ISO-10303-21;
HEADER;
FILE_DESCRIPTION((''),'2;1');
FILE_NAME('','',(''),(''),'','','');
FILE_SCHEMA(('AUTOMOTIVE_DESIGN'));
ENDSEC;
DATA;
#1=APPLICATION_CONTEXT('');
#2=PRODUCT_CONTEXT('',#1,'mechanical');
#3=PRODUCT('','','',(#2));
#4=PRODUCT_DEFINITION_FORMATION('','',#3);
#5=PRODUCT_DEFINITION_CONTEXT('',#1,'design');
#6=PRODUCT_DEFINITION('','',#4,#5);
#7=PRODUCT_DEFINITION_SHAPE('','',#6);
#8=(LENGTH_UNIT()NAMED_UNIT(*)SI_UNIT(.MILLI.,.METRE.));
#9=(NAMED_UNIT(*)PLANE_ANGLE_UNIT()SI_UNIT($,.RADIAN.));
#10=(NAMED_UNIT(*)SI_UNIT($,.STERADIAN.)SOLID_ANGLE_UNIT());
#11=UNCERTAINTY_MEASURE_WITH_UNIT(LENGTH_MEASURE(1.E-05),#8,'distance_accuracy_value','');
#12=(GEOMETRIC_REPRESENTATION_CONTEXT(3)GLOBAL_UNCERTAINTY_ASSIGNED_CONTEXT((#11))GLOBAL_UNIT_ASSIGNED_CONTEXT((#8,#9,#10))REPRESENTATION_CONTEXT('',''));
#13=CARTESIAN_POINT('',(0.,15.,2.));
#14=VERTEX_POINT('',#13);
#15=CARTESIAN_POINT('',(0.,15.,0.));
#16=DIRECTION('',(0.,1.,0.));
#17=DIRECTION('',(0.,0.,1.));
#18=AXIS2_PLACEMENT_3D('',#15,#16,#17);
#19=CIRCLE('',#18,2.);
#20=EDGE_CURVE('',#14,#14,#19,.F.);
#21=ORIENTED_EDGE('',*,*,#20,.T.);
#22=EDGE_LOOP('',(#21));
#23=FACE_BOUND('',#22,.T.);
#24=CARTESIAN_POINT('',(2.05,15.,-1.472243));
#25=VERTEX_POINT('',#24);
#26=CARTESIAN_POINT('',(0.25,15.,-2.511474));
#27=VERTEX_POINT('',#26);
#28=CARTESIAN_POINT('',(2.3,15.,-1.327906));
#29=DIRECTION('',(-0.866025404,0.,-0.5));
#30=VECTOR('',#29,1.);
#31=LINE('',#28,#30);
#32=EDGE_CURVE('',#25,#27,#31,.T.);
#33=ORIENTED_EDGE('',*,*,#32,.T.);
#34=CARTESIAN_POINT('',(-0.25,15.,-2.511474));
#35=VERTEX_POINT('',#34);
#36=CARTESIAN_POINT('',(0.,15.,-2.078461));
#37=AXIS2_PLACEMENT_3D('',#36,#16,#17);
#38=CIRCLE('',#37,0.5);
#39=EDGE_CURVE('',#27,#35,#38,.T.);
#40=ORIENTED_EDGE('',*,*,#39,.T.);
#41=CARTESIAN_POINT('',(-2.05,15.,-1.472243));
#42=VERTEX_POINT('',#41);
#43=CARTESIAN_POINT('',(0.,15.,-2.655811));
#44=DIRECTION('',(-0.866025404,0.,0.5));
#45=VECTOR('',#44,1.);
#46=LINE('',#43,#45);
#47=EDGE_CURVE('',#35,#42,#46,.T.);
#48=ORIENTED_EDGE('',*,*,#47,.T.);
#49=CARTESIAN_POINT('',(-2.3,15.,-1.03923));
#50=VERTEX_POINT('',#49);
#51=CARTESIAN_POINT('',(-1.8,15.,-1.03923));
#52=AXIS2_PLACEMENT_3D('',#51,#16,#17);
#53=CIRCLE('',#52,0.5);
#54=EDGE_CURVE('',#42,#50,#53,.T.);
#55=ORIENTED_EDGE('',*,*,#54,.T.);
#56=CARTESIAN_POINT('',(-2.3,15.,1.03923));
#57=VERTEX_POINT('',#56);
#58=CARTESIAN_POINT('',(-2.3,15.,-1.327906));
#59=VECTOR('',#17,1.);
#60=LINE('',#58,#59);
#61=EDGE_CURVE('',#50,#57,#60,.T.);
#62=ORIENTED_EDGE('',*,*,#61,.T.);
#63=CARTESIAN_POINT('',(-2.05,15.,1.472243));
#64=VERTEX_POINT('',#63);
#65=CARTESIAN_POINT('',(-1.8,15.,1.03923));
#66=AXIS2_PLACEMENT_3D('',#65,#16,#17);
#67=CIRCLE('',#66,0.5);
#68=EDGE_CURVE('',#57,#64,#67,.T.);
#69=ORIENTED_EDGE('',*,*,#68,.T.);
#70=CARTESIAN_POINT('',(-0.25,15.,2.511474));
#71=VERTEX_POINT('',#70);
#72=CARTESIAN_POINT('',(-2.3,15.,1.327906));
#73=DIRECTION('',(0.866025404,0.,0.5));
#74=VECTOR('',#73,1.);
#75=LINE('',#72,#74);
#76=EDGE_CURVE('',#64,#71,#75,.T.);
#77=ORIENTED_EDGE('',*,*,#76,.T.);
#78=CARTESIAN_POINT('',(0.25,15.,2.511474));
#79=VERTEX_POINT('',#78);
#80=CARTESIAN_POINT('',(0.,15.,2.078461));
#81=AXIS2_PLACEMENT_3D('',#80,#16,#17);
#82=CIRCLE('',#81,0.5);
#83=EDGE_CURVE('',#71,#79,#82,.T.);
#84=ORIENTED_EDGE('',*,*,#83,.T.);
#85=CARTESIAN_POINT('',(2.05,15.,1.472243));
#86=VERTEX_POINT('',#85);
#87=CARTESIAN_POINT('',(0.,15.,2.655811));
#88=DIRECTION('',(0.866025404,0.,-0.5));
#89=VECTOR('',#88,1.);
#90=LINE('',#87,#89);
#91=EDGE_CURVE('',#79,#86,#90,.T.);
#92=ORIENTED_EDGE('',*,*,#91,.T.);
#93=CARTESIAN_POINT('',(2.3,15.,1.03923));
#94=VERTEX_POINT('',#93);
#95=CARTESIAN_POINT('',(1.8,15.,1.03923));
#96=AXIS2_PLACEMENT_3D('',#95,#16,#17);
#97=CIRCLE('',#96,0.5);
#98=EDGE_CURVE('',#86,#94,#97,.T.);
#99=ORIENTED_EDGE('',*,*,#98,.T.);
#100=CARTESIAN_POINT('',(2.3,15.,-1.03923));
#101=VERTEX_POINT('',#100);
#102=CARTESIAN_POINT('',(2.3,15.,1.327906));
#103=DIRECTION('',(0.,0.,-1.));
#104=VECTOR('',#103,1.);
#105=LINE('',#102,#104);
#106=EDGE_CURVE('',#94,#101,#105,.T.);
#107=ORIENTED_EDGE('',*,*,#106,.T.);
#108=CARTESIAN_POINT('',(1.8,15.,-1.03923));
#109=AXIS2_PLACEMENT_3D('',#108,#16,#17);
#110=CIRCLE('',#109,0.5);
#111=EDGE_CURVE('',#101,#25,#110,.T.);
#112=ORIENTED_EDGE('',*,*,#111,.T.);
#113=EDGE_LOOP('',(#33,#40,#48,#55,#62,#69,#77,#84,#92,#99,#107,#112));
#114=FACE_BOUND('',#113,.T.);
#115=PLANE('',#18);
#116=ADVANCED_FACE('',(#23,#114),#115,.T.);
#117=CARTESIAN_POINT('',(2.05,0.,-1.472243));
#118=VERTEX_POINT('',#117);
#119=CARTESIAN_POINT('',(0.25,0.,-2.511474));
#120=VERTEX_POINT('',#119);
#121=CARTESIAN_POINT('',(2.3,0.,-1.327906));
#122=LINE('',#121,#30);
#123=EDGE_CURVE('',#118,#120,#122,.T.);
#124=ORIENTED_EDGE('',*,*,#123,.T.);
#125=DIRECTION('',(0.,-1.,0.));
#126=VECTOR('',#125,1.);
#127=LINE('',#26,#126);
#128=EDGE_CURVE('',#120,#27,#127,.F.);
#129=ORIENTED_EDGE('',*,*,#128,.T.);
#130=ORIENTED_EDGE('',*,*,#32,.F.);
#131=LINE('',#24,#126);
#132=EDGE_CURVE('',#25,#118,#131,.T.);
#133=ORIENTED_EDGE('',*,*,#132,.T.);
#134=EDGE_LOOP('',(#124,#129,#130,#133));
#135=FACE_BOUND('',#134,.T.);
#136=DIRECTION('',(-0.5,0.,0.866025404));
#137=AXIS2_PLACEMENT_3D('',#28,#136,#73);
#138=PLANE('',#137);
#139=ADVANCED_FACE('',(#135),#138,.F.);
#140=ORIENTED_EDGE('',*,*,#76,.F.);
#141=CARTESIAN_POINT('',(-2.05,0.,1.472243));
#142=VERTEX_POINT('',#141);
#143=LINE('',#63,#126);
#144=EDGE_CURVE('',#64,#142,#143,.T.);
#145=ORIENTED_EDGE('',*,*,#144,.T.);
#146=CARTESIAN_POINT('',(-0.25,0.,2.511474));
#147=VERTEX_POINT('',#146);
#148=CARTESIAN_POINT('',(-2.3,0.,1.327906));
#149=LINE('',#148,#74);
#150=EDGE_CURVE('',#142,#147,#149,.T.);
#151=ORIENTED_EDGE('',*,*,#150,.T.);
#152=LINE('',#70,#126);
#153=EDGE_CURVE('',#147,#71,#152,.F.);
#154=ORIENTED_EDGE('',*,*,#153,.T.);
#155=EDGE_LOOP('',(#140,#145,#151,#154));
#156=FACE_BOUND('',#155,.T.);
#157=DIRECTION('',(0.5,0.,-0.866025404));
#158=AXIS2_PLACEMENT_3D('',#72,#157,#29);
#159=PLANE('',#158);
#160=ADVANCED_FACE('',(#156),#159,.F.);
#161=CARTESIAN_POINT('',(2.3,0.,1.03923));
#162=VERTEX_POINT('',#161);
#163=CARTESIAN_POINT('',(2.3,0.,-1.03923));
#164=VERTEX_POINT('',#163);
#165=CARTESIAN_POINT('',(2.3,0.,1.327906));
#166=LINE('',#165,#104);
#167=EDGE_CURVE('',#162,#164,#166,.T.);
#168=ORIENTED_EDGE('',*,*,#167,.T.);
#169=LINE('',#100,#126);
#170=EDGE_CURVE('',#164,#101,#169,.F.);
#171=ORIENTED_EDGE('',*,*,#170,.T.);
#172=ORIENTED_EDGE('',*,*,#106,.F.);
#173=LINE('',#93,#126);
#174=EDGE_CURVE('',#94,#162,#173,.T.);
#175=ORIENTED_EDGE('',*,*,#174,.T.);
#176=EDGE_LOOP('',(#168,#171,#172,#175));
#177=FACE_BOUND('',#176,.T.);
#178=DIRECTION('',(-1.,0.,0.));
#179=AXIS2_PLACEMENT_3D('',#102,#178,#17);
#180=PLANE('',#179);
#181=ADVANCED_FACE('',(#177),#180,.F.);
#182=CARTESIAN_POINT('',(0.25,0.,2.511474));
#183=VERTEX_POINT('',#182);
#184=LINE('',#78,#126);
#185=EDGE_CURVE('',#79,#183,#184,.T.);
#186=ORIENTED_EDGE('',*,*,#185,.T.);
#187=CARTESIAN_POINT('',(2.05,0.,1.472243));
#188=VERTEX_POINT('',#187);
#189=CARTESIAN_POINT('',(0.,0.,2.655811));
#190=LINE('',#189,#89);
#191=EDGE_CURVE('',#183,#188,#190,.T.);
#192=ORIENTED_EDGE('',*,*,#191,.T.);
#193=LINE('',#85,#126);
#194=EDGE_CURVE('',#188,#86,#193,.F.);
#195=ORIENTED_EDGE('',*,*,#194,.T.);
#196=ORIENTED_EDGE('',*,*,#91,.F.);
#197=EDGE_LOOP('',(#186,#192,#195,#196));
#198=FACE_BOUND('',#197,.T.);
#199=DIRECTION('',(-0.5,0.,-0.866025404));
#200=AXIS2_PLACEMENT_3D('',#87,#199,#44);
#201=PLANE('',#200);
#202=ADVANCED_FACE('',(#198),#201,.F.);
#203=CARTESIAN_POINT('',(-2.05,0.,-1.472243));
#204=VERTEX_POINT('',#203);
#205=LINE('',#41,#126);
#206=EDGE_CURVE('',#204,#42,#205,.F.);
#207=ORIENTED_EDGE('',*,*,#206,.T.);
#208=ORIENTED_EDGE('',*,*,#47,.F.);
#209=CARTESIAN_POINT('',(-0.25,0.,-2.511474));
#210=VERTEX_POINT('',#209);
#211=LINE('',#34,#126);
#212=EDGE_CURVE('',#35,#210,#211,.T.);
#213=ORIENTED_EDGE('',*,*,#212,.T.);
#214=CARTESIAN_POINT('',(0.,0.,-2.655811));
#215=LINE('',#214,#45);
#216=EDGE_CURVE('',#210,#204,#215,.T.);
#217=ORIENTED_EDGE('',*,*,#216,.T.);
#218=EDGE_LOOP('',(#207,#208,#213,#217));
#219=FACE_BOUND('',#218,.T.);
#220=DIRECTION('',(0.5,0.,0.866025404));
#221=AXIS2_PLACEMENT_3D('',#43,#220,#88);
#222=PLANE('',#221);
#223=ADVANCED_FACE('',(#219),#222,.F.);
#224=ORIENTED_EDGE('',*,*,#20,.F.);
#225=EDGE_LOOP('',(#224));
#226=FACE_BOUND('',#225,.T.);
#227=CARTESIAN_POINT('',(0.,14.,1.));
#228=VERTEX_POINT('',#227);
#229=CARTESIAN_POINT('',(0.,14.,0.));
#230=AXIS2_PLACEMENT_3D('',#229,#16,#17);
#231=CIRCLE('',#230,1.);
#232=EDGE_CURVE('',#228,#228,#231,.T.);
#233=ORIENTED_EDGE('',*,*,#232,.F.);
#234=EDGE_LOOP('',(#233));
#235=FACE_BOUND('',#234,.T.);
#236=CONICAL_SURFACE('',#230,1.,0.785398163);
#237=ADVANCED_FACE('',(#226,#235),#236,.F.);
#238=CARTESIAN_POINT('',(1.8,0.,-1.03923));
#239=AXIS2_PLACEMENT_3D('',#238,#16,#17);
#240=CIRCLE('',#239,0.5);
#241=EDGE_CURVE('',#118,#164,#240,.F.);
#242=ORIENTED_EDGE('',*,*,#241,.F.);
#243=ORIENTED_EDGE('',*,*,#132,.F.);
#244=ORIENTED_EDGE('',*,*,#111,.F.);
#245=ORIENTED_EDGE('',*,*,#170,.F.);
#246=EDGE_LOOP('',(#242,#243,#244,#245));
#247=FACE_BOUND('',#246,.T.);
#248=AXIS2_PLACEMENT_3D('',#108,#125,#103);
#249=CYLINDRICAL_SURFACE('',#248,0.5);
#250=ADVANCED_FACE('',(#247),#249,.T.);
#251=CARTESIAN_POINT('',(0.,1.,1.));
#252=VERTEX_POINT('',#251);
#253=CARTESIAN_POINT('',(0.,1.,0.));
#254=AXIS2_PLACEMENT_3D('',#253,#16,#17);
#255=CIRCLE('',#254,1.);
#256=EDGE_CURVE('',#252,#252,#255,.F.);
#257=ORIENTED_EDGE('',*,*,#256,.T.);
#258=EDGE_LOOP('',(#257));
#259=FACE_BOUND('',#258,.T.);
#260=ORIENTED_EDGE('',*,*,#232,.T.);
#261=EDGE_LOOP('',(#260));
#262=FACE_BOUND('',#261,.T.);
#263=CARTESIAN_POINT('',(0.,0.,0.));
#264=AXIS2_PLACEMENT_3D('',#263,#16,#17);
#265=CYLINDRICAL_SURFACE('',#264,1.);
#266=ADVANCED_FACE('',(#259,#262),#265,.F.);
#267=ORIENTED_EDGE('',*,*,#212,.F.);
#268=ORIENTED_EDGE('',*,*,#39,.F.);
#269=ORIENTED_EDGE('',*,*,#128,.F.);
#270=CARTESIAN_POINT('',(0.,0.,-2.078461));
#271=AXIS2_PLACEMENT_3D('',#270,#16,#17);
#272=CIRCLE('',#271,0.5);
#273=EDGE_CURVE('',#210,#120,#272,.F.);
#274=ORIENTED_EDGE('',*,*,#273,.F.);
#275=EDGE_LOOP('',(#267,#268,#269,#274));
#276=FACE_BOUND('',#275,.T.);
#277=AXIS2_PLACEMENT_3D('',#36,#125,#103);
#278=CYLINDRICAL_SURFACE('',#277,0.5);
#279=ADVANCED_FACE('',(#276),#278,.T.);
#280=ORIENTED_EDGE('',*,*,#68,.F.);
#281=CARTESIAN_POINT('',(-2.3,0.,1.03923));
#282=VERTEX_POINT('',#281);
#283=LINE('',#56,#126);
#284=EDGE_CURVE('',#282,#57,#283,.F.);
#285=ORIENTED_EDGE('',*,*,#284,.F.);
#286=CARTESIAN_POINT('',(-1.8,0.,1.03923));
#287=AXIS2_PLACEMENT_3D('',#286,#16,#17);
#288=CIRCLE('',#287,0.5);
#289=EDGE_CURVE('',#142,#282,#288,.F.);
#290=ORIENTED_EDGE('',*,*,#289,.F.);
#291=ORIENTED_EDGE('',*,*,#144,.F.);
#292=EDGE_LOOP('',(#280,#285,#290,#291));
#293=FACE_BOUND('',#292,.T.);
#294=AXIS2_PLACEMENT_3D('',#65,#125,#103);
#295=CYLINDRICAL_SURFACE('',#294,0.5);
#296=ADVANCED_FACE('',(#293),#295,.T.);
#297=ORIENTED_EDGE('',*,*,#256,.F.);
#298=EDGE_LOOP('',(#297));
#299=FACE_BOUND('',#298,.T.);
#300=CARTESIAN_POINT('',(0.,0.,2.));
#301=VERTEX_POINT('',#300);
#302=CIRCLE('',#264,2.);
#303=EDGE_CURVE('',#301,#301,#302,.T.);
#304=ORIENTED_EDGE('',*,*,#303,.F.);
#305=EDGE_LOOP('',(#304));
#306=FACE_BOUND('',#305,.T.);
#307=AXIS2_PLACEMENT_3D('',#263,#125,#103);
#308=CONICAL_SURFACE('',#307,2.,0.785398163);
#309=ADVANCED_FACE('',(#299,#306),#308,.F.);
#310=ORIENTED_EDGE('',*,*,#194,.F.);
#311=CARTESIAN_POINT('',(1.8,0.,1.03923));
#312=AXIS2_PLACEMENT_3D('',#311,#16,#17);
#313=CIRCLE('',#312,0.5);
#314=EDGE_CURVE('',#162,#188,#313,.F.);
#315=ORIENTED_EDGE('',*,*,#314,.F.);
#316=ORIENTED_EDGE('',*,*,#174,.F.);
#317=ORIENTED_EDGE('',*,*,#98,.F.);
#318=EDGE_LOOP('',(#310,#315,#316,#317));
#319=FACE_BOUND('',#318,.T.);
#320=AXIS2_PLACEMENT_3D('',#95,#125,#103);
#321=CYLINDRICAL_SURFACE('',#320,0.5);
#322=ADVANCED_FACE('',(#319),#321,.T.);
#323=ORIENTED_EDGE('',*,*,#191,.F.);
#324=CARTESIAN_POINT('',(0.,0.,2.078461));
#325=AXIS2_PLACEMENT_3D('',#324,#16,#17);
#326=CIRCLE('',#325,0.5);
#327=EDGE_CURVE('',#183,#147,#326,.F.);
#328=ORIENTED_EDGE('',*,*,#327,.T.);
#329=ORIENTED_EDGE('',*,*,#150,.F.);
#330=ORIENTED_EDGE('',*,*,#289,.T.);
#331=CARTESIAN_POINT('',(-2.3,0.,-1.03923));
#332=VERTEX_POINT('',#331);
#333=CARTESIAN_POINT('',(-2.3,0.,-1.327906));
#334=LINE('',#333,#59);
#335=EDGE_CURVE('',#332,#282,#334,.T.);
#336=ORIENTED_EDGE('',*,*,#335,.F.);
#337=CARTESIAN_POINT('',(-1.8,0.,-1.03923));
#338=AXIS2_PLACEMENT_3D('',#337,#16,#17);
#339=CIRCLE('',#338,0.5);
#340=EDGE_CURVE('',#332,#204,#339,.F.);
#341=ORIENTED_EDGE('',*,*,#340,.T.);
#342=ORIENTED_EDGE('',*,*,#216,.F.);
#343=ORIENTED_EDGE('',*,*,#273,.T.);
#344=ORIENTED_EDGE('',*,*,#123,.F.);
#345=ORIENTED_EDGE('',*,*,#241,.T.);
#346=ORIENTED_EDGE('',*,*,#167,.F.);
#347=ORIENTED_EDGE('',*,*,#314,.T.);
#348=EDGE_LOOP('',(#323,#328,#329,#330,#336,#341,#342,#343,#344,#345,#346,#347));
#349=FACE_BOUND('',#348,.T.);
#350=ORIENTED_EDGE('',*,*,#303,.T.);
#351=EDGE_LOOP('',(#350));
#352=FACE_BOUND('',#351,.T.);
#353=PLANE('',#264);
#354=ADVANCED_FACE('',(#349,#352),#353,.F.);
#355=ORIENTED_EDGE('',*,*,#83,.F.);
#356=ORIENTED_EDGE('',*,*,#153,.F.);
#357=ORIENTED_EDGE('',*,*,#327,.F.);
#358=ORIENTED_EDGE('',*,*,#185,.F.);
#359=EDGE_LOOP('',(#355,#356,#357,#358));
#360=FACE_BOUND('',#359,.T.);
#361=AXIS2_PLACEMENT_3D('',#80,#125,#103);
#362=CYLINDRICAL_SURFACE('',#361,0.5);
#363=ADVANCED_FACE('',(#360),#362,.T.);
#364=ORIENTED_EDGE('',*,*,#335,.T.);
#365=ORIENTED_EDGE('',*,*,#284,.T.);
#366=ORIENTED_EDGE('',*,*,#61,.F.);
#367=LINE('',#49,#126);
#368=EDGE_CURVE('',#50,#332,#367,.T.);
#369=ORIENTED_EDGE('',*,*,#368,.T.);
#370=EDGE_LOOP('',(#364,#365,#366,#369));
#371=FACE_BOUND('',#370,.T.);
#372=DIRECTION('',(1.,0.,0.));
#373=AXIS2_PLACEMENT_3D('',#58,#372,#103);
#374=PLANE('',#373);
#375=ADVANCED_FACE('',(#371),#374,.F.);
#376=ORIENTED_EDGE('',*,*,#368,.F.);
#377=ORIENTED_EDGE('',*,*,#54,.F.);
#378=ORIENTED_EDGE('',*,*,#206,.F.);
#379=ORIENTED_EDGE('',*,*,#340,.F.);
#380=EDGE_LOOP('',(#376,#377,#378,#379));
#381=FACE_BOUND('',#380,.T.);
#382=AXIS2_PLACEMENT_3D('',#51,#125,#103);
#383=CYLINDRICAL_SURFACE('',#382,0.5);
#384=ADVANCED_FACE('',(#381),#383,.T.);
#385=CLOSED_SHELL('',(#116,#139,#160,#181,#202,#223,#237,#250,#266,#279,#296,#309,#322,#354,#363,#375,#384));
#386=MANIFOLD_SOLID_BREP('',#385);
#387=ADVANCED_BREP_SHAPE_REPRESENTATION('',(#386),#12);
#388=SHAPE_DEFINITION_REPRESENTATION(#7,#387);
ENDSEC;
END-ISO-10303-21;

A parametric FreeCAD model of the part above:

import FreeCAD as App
import Part
import Sketcher
from FreeCAD import Vector
Q = App.Units.Quantity


def edges_at(feature, points):
    """Names of the edges that pass closest to the given points."""
    edges = feature.Shape.Edges
    near = lambda p: min(range(len(edges)), key=lambda i: edges[i].distToShape(Part.Vertex(*p))[0])
    return sorted({f"Edge{near(p) + 1}" for p in points})

doc = App.newDocument("Part")
params = doc.addObject("Spreadsheet::Sheet", "Params")
for row, (alias, value) in enumerate([
    ("pad1_length", "15 mm"),
    ("sketch2_diameter", "2 mm"),
    ("chamfer_size", "1 mm"),
    ("fillet_radius", "0.5 mm"),
], start=1):
    params.set(f"A{row}", alias)
    params.set(f"B{row}", "=" + value)
    params.setAlias(f"B{row}", alias)

body = doc.addObject("PartDesign::Body", "Body")

sketch1 = body.newObject("Sketcher::SketchObject", "Sketch")
sketch1.AttachmentSupport = (doc.getObject("XZ_Plane"), [""])
sketch1.MapMode = "FlatFace"
sketch1.addGeometry([
    Part.LineSegment(Vector(0, -2.655811, 0), Vector(-2.3, -1.327906, 0)),
    Part.LineSegment(Vector(-2.3, -1.327906, 0), Vector(-2.3, 1.327906, 0)),
    Part.LineSegment(Vector(-2.3, 1.327906, 0), Vector(0, 2.655811, 0)),
    Part.LineSegment(Vector(0, 2.655811, 0), Vector(2.3, 1.327906, 0)),
    Part.LineSegment(Vector(2.3, 1.327906, 0), Vector(2.3, -1.327906, 0)),
    Part.LineSegment(Vector(2.3, -1.327906, 0), Vector(0, -2.655811, 0)),
], False)
sketch1.addConstraint([
    Sketcher.Constraint("Coincident", 0, 2, 1, 1),
    Sketcher.Constraint("Coincident", 1, 2, 2, 1),
    Sketcher.Constraint("Coincident", 2, 2, 3, 1),
    Sketcher.Constraint("Coincident", 3, 2, 4, 1),
    Sketcher.Constraint("Coincident", 4, 2, 5, 1),
    Sketcher.Constraint("Coincident", 5, 2, 0, 1),
    Sketcher.Constraint("Vertical", 1),
    Sketcher.Constraint("Vertical", 4),
    Sketcher.Constraint("Symmetric", 0, 2, 3, 2, -1, 1),
    Sketcher.Constraint("Symmetric", 2, 2, 5, 2, -1, 1),
    Sketcher.Constraint("PointOnObject", 2, 2, -2),
    Sketcher.Constraint("Parallel", 2, 5),
    Sketcher.Constraint("Horizontal", 1, 2, 3, 2),
    Sketcher.Constraint("Angle", 0, Q("150 deg")),
    Sketcher.Constraint("DistanceX", 0, 2, -1, 1, 2.3),
    Sketcher.Constraint("DistanceY", 1, 1, 1, 2, 2.655811),
])
pad1 = body.newObject("PartDesign::Pad", "Pad")
pad1.Profile = sketch1
pad1.setExpression("Length", "Params.pad1_length")
pad1.Reversed = True

sketch2 = body.newObject("Sketcher::SketchObject", "Sketch001")
sketch2.AttachmentSupport = (doc.getObject("XZ_Plane"), [""])
sketch2.MapMode = "FlatFace"
sketch2.AttachmentOffset = App.Placement(Vector(0, 0, -15), App.Rotation())
sketch2.addGeometry(Part.Circle(Vector(0, 0, 0), Vector(0, 0, 1), 1), False)
sketch2.addConstraint([
    Sketcher.Constraint("Coincident", 0, 3, -1, 1),
    Sketcher.Constraint("Diameter", 0, 2.0),
])
sketch2.setExpression("Constraints[1]", "Params.sketch2_diameter")
pocket1 = body.newObject("PartDesign::Pocket", "Pocket")
pocket1.Profile = sketch2
pocket1.Type = "ThroughAll"
pocket1.Reversed = True
doc.recompute()

chamfer = body.newObject("PartDesign::Chamfer", "Chamfer")
chamfer.Base = (pocket1, edges_at(pocket1, [(0, 0, -1), (0, 15, -1)]))
chamfer.setExpression("Size", "Params.chamfer_size")
doc.recompute()

fillet = body.newObject("PartDesign::Fillet", "Fillet")
fillet.Base = (chamfer, edges_at(chamfer, [
    (2.3, 7.5, -1.328),
    (2.3, 7.5, 1.328),
    (0, 7.5, 2.656),
    (-2.3, 7.5, 1.328),
    (-2.3, 7.5, -1.328),
    (0, 7.5, -2.656),
]))
fillet.setExpression("Radius", "Params.fillet_radius")

doc.recompute()
